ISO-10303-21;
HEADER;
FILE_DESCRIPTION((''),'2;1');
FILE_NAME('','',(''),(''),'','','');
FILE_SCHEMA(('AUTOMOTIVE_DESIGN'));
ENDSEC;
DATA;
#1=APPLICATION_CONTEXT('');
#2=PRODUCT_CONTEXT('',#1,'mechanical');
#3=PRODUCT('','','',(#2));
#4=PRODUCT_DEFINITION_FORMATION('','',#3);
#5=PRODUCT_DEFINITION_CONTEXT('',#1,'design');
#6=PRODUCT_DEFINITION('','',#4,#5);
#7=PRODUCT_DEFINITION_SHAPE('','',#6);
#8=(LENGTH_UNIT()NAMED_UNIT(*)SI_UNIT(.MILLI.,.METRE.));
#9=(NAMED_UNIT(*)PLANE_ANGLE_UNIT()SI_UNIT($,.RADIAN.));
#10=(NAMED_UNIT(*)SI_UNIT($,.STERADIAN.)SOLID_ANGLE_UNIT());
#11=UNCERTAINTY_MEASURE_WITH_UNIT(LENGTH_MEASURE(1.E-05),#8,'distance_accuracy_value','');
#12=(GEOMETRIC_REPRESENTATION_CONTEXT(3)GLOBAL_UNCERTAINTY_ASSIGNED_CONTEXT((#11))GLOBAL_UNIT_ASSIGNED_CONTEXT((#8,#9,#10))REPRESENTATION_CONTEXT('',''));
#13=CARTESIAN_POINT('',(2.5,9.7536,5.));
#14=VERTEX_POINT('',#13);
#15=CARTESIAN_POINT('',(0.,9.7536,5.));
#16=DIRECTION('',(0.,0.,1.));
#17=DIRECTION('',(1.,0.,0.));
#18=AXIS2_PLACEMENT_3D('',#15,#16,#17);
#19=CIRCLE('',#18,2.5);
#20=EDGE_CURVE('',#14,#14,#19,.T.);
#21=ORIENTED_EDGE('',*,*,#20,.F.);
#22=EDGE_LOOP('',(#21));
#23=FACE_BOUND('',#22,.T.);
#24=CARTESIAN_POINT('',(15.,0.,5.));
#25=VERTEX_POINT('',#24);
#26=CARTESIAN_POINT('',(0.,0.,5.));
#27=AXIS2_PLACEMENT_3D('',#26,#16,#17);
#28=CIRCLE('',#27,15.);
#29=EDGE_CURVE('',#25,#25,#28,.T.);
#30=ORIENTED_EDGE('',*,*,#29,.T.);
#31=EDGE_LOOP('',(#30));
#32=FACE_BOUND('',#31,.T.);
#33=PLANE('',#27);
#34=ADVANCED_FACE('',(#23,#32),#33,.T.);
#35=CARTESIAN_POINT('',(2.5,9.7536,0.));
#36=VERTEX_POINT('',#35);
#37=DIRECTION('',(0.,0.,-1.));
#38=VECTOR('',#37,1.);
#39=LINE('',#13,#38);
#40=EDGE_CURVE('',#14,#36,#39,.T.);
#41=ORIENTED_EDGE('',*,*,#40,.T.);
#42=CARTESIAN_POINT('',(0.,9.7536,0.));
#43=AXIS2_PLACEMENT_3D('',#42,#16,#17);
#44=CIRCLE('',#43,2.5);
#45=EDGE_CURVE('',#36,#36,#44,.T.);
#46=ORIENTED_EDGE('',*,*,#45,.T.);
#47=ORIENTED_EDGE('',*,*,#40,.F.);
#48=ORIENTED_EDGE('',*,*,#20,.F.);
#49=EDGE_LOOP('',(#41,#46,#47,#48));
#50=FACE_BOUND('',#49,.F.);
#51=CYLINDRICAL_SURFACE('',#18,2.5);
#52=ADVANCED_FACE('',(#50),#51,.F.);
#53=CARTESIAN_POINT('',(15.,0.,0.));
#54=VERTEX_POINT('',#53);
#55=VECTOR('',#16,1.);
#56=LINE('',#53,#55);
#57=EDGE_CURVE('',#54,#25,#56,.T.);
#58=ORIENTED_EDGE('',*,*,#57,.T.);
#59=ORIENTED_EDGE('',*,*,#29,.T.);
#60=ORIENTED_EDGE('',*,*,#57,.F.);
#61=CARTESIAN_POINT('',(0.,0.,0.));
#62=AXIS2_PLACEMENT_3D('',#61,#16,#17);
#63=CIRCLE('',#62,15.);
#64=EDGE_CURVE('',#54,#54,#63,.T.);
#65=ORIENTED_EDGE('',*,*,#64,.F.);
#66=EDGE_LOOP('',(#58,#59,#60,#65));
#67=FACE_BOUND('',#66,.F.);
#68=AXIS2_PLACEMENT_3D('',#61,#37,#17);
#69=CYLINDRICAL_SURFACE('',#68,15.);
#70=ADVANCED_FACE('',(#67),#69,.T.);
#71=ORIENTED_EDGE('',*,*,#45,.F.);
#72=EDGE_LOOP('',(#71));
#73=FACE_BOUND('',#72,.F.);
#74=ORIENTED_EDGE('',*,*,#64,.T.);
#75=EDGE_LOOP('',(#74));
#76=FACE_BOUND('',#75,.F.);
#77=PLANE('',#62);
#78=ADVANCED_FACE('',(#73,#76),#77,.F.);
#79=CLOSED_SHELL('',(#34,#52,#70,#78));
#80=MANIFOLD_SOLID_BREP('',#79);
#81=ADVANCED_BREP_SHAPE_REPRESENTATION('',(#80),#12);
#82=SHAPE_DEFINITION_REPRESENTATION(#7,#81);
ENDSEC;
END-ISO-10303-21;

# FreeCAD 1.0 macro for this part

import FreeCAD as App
import Part
import Sketcher

V = App.Vector

doc = App.newDocument("Part")
body = doc.addObject("PartDesign::Body", "Body")

sketch1 = body.newObject("Sketcher::SketchObject", "Sketch")
sketch1.AttachmentSupport = (doc.getObject("XY_Plane"), [""])
sketch1.MapMode = "FlatFace"
sketch1.addGeometry(Part.Circle(V(0, 0, 0), V(0, 0, 1), 15), False)
sketch1.addConstraint(Sketcher.Constraint("Coincident", 0, 3, -1, 1))
sketch1.addConstraint(Sketcher.Constraint("Diameter", 0, 30.0))
pad1 = body.newObject("PartDesign::Pad", "Pad")
pad1.Profile = sketch1
pad1.Length = 5

sketch2 = body.newObject("Sketcher::SketchObject", "Sketch001")
sketch2.AttachmentSupport = (doc.getObject("XY_Plane"), [""])
sketch2.MapMode = "FlatFace"
sketch2.AttachmentOffset = App.Placement(V(0, 0, 5), App.Rotation())
sketch2.addGeometry(Part.Circle(V(0, 9.7536, 0), V(0, 0, 1), 2.5), False)
sketch2.addConstraint(Sketcher.Constraint("PointOnObject", 0, 3, -2))
sketch2.addConstraint(Sketcher.Constraint("Diameter", 0, 5.0))
sketch2.addConstraint(Sketcher.Constraint("DistanceY", -1, 1, 0, 3, 9.7536))
pocket1 = body.newObject("PartDesign::Pocket", "Pocket")
pocket1.Profile = sketch2
pocket1.Length = 10

doc.recompute()
